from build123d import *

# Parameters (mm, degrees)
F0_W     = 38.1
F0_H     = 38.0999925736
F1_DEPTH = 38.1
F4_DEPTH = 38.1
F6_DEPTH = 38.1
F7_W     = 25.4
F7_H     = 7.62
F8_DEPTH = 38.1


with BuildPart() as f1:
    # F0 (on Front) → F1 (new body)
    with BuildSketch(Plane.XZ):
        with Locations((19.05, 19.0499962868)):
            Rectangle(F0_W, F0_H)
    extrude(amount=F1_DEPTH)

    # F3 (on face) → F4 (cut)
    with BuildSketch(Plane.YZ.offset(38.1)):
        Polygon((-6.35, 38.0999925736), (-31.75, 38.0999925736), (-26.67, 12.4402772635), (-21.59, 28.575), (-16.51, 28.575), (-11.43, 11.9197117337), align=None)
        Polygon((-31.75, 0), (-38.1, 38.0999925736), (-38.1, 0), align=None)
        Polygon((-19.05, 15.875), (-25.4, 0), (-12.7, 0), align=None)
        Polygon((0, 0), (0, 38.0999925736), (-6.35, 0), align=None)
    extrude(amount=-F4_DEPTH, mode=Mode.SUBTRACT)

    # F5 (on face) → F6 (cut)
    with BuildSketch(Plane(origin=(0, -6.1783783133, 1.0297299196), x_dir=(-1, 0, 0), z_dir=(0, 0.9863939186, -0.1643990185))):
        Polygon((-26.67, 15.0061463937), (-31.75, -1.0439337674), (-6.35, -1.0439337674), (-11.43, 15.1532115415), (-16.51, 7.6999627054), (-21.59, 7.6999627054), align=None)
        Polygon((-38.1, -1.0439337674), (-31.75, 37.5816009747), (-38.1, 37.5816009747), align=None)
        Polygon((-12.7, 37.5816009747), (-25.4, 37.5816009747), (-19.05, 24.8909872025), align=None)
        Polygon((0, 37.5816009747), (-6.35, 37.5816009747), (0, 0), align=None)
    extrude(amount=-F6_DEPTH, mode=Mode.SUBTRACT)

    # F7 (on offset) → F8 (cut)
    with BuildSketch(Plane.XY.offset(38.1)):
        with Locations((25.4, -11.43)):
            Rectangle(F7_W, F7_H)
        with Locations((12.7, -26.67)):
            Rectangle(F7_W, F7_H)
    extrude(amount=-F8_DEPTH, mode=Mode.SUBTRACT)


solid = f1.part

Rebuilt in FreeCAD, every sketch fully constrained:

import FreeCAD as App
import Part
import Sketcher
Q = App.Units.Quantity


def add_polygon(sketch, points):
    """Adds a closed chain of lines whose ends are joined by coincident constraints."""
    first, n = sketch.GeometryCount, len(points)
    for a, b in zip(points, points[1:] + points[:1]):
        sketch.addGeometry(Part.LineSegment(App.Vector(*a, 0), App.Vector(*b, 0)), False)
    for i in range(n):
        sketch.addConstraint(Sketcher.Constraint("Coincident", first + i, 2, first + (i + 1) % n, 1))

doc = App.newDocument("Part")
body = doc.addObject("PartDesign::Body", "Body")

# Sketch on XZ plane
sketch1 = body.newObject("Sketcher::SketchObject", "Sketch")
sketch1.AttachmentSupport = (doc.getObject("XZ_Plane"), [""])
sketch1.MapMode = "FlatFace"
add_polygon(sketch1, [(0, 38), (0, 0), (38, 0), (38, 38)])  # lines 0-3
sketch1.addConstraint(Sketcher.Constraint("Vertical", 0))
sketch1.addConstraint(Sketcher.Constraint("Horizontal", 1))
sketch1.addConstraint(Sketcher.Constraint("Vertical", 2))
sketch1.addConstraint(Sketcher.Constraint("Horizontal", 3))
sketch1.addConstraint(Sketcher.Constraint("Coincident", 0, 2, -1, 1))
sketch1.addConstraint(Sketcher.Constraint("DistanceX", 1, 1, 1, 2, Q("1.5 in")))
sketch1.addConstraint(Sketcher.Constraint("DistanceY", 0, 2, 0, 1, 38.099993))
pad1 = body.newObject("PartDesign::Pad", "Pad")
pad1.Profile = sketch1
pad1.Length = Q("1.5 in")

# Sketch on YZ plane
sketch2 = body.newObject("Sketcher::SketchObject", "Sketch001")
sketch2.AttachmentSupport = (doc.getObject("YZ_Plane"), [""])
sketch2.MapMode = "FlatFace"
sketch2.AttachmentOffset = App.Placement(App.Vector(0, 0, 1.5 * 25.4), App.Rotation())
add_polygon(sketch2, [(-6, 38), (-32, 38), (-27, 12), (-22, 29), (-17, 29), (-11, 12)])  # lines 0-5
add_polygon(sketch2, [(-32, 0), (-38, 38), (-38, 0)])  # lines 6-8
add_polygon(sketch2, [(-19, 16), (-25, 0), (-13, 0)])  # lines 9-11
add_polygon(sketch2, [(0, 0), (0, 38), (-6, 0)])  # lines 12-14
sketch2.addConstraint(Sketcher.Constraint("Horizontal", 0))
sketch2.addConstraint(Sketcher.Constraint("Horizontal", 3))
sketch2.addConstraint(Sketcher.Constraint("Vertical", 7))
sketch2.addConstraint(Sketcher.Constraint("Horizontal", 8))
sketch2.addConstraint(Sketcher.Constraint("Horizontal", 10))
sketch2.addConstraint(Sketcher.Constraint("Vertical", 12))
sketch2.addConstraint(Sketcher.Constraint("Horizontal", 14))
sketch2.addConstraint(Sketcher.Constraint("Coincident", 14, 2, -1, 1))
sketch2.addConstraint(Sketcher.Constraint("PointOnObject", 7, 2, -1))
sketch2.addConstraint(Sketcher.Constraint("PointOnObject", 9, 2, -1))
sketch2.addConstraint(Sketcher.Constraint("Horizontal", 5, 2, 6, 2))
sketch2.addConstraint(Sketcher.Constraint("Horizontal", 6, 2, 12, 2))
sketch2.addConstraint(Sketcher.Constraint("Vertical", 0, 2, 8, 2))
sketch2.addConstraint(Sketcher.Constraint("Vertical", 5, 2, 13, 2))
sketch2.addConstraint(Sketcher.Constraint("Equal", 8, 14))
sketch2.addConstraint(Sketcher.Constraint("Equal", 9, 11))
sketch2.addConstraint(Sketcher.Constraint("DistanceX", 0, 2, 0, 1, Q("1 in")))
sketch2.addConstraint(Sketcher.Constraint("DistanceX", 3, 1, 3, 2, Q("0.2 in")))
sketch2.addConstraint(Sketcher.Constraint("DistanceX", 10, 1, 10, 2, Q("0.5 in")))
sketch2.addConstraint(Sketcher.Constraint("DistanceX", 9, 2, -1, 1, Q("1 in")))
sketch2.addConstraint(Sketcher.Constraint("DistanceX", 7, 2, 10, 2, Q("1 in")))
sketch2.addConstraint(Sketcher.Constraint("DistanceX", 0, 2, 1, 2, Q("0.2 in")))
sketch2.addConstraint(Sketcher.Constraint("DistanceX", 0, 2, 2, 2, Q("0.4 in")))
sketch2.addConstraint(Sketcher.Constraint("DistanceX", 1, 2, 4, 2, Q("0.6 in")))
sketch2.addConstraint(Sketcher.Constraint("DistanceY", 11, 2, 2, 2, Q("0.5 in")))
sketch2.addConstraint(Sketcher.Constraint("DistanceY", -1, 1, 2, 2, Q("1.125 in")))
sketch2.addConstraint(Sketcher.Constraint("Distance", 1, 26.157741))
sketch2.addConstraint(Sketcher.Constraint("DistanceY", 7, 2, 7, 1, 38.099993))
sketch2.addConstraint(Sketcher.Constraint("DistanceY", -1, 1, 4, 2, 11.919712))
pocket1 = body.newObject("PartDesign::Pocket", "Pocket")
pocket1.Profile = sketch2
pocket1.Length = Q("1.5 in")

# Sketch on an angled plane
sketch3 = body.newObject("Sketcher::SketchObject", "Sketch002")
sketch3.Placement = App.Placement(App.Vector(0, -6.178378, 1.02973), App.Rotation(App.Vector(-1, 0, 0), App.Vector(0, 0.164399019, 0.986393919), App.Vector(0, 0.986393919, -0.164399019), "ZXY"))
add_polygon(sketch3, [(-27, 15), (-32, -1), (-6, -1), (-11, 15), (-17, 8), (-22, 8)])  # lines 0-5
add_polygon(sketch3, [(-38, -1), (-32, 38), (-38, 38)])  # lines 6-8
add_polygon(sketch3, [(-13, 38), (-25, 38), (-19, 25)])  # lines 9-11
add_polygon(sketch3, [(0, 38), (-6, 38), (0, 0)])  # lines 12-14
sketch3.addConstraint(Sketcher.Constraint("Horizontal", 1))
sketch3.addConstraint(Sketcher.Constraint("Horizontal", 4))
sketch3.addConstraint(Sketcher.Constraint("Horizontal", 7))
sketch3.addConstraint(Sketcher.Constraint("Vertical", 8))
sketch3.addConstraint(Sketcher.Constraint("Horizontal", 9))
sketch3.addConstraint(Sketcher.Constraint("Horizontal", 12))
sketch3.addConstraint(Sketcher.Constraint("Vertical", 14))
sketch3.addConstraint(Sketcher.Constraint("Coincident", 13, 2, -1, 1))
sketch3.addConstraint(Sketcher.Constraint("Horizontal", 1, 2, 8, 2))
sketch3.addConstraint(Sketcher.Constraint("Horizontal", 7, 2, 9, 2))
sketch3.addConstraint(Sketcher.Constraint("Horizontal", 11, 2, 12, 2))
sketch3.addConstraint(Sketcher.Constraint("Vertical", 0, 2, 6, 2))
sketch3.addConstraint(Sketcher.Constraint("Vertical", 1, 2, 12, 2))
sketch3.addConstraint(Sketcher.Constraint("Equal", 7, 12))
sketch3.addConstraint(Sketcher.Constraint("Equal", 10, 11))
sketch3.addConstraint(Sketcher.Constraint("DistanceX", 1, 1, 1, 2, Q("1 in")))
sketch3.addConstraint(Sketcher.Constraint("DistanceX", 4, 2, 4, 1, Q("0.2 in")))
sketch3.addConstraint(Sketcher.Constraint("DistanceX", 9, 2, 9, 1, Q("0.5 in")))
sketch3.addConstraint(Sketcher.Constraint("DistanceX", 9, 2, -1, 1, Q("1 in")))
sketch3.addConstraint(Sketcher.Constraint("DistanceX", 7, 2, 11, 2, Q("1 in")))
sketch3.addConstraint(Sketcher.Constraint("DistanceX", 2, 2, 1, 2, Q("0.2 in")))
sketch3.addConstraint(Sketcher.Constraint("DistanceX", 3, 2, 2, 2, Q("0.2 in")))
sketch3.addConstraint(Sketcher.Constraint("DistanceX", 5, 2, 4, 2, Q("0.2 in")))
sketch3.addConstraint(Sketcher.Constraint("DistanceY", 14, 1, 14, 2, 37.581601))
sketch3.addConstraint(Sketcher.Constraint("Distance", 0, 16.834829))
sketch3.addConstraint(Sketcher.Constraint("Distance", 3, 9.019829))
sketch3.addConstraint(Sketcher.Constraint("Distance", 6, 39.144022))
sketch3.addConstraint(Sketcher.Constraint("DistanceY", -1, 1, 2, 2, 15.153212))
sketch3.addConstraint(Sketcher.Constraint("DistanceY", 5, 2, 10, 2, 9.884841))
pocket2 = body.newObject("PartDesign::Pocket", "Pocket001")
pocket2.Profile = sketch3
pocket2.Length = Q("1.5 in")

# Sketch on XY plane
sketch4 = body.newObject("Sketcher::SketchObject", "Sketch003")
sketch4.AttachmentSupport = (doc.getObject("XY_Plane"), [""])
sketch4.MapMode = "FlatFace"
sketch4.AttachmentOffset = App.Placement(App.Vector(0, 0, 1.5 * 25.4), App.Rotation())
add_polygon(sketch4, [(13, -8), (13, -15), (38, -15), (38, -8)])  # lines 0-3
add_polygon(sketch4, [(0, -23), (0, -30), (25, -30), (25, -23)])  # lines 4-7
sketch4.addConstraint(Sketcher.Constraint("Vertical", 0))
sketch4.addConstraint(Sketcher.Constraint("Horizontal", 1))
sketch4.addConstraint(Sketcher.Constraint("Vertical", 2))
sketch4.addConstraint(Sketcher.Constraint("Horizontal", 3))
sketch4.addConstraint(Sketcher.Constraint("Vertical", 4))
sketch4.addConstraint(Sketcher.Constraint("Horizontal", 5))
sketch4.addConstraint(Sketcher.Constraint("Vertical", 6))
sketch4.addConstraint(Sketcher.Constraint("Horizontal", 7))
sketch4.addConstraint(Sketcher.Constraint("PointOnObject", 4, 2, -2))
sketch4.addConstraint(Sketcher.Constraint("Equal", 3, 5))
sketch4.addConstraint(Sketcher.Constraint("Equal", 2, 4))
sketch4.addConstraint(Sketcher.Constraint("DistanceX", 1, 1, 1, 2, Q("1 in")))
sketch4.addConstraint(Sketcher.Constraint("DistanceY", 0, 2, 0, 1, Q("0.3 in")))
sketch4.addConstraint(Sketcher.Constraint("DistanceX", -1, 1, 0, 2, Q("0.5 in")))
sketch4.addConstraint(Sketcher.Constraint("DistanceY", 0, 2, -1, 1, Q("0.6 in")))
sketch4.addConstraint(Sketcher.Constraint("DistanceY", 4, 2, -1, 1, Q("1.2 in")))
pocket3 = body.newObject("PartDesign::Pocket", "Pocket002")
pocket3.Profile = sketch4
pocket3.Length = Q("1.5 in")

doc.recompute()
